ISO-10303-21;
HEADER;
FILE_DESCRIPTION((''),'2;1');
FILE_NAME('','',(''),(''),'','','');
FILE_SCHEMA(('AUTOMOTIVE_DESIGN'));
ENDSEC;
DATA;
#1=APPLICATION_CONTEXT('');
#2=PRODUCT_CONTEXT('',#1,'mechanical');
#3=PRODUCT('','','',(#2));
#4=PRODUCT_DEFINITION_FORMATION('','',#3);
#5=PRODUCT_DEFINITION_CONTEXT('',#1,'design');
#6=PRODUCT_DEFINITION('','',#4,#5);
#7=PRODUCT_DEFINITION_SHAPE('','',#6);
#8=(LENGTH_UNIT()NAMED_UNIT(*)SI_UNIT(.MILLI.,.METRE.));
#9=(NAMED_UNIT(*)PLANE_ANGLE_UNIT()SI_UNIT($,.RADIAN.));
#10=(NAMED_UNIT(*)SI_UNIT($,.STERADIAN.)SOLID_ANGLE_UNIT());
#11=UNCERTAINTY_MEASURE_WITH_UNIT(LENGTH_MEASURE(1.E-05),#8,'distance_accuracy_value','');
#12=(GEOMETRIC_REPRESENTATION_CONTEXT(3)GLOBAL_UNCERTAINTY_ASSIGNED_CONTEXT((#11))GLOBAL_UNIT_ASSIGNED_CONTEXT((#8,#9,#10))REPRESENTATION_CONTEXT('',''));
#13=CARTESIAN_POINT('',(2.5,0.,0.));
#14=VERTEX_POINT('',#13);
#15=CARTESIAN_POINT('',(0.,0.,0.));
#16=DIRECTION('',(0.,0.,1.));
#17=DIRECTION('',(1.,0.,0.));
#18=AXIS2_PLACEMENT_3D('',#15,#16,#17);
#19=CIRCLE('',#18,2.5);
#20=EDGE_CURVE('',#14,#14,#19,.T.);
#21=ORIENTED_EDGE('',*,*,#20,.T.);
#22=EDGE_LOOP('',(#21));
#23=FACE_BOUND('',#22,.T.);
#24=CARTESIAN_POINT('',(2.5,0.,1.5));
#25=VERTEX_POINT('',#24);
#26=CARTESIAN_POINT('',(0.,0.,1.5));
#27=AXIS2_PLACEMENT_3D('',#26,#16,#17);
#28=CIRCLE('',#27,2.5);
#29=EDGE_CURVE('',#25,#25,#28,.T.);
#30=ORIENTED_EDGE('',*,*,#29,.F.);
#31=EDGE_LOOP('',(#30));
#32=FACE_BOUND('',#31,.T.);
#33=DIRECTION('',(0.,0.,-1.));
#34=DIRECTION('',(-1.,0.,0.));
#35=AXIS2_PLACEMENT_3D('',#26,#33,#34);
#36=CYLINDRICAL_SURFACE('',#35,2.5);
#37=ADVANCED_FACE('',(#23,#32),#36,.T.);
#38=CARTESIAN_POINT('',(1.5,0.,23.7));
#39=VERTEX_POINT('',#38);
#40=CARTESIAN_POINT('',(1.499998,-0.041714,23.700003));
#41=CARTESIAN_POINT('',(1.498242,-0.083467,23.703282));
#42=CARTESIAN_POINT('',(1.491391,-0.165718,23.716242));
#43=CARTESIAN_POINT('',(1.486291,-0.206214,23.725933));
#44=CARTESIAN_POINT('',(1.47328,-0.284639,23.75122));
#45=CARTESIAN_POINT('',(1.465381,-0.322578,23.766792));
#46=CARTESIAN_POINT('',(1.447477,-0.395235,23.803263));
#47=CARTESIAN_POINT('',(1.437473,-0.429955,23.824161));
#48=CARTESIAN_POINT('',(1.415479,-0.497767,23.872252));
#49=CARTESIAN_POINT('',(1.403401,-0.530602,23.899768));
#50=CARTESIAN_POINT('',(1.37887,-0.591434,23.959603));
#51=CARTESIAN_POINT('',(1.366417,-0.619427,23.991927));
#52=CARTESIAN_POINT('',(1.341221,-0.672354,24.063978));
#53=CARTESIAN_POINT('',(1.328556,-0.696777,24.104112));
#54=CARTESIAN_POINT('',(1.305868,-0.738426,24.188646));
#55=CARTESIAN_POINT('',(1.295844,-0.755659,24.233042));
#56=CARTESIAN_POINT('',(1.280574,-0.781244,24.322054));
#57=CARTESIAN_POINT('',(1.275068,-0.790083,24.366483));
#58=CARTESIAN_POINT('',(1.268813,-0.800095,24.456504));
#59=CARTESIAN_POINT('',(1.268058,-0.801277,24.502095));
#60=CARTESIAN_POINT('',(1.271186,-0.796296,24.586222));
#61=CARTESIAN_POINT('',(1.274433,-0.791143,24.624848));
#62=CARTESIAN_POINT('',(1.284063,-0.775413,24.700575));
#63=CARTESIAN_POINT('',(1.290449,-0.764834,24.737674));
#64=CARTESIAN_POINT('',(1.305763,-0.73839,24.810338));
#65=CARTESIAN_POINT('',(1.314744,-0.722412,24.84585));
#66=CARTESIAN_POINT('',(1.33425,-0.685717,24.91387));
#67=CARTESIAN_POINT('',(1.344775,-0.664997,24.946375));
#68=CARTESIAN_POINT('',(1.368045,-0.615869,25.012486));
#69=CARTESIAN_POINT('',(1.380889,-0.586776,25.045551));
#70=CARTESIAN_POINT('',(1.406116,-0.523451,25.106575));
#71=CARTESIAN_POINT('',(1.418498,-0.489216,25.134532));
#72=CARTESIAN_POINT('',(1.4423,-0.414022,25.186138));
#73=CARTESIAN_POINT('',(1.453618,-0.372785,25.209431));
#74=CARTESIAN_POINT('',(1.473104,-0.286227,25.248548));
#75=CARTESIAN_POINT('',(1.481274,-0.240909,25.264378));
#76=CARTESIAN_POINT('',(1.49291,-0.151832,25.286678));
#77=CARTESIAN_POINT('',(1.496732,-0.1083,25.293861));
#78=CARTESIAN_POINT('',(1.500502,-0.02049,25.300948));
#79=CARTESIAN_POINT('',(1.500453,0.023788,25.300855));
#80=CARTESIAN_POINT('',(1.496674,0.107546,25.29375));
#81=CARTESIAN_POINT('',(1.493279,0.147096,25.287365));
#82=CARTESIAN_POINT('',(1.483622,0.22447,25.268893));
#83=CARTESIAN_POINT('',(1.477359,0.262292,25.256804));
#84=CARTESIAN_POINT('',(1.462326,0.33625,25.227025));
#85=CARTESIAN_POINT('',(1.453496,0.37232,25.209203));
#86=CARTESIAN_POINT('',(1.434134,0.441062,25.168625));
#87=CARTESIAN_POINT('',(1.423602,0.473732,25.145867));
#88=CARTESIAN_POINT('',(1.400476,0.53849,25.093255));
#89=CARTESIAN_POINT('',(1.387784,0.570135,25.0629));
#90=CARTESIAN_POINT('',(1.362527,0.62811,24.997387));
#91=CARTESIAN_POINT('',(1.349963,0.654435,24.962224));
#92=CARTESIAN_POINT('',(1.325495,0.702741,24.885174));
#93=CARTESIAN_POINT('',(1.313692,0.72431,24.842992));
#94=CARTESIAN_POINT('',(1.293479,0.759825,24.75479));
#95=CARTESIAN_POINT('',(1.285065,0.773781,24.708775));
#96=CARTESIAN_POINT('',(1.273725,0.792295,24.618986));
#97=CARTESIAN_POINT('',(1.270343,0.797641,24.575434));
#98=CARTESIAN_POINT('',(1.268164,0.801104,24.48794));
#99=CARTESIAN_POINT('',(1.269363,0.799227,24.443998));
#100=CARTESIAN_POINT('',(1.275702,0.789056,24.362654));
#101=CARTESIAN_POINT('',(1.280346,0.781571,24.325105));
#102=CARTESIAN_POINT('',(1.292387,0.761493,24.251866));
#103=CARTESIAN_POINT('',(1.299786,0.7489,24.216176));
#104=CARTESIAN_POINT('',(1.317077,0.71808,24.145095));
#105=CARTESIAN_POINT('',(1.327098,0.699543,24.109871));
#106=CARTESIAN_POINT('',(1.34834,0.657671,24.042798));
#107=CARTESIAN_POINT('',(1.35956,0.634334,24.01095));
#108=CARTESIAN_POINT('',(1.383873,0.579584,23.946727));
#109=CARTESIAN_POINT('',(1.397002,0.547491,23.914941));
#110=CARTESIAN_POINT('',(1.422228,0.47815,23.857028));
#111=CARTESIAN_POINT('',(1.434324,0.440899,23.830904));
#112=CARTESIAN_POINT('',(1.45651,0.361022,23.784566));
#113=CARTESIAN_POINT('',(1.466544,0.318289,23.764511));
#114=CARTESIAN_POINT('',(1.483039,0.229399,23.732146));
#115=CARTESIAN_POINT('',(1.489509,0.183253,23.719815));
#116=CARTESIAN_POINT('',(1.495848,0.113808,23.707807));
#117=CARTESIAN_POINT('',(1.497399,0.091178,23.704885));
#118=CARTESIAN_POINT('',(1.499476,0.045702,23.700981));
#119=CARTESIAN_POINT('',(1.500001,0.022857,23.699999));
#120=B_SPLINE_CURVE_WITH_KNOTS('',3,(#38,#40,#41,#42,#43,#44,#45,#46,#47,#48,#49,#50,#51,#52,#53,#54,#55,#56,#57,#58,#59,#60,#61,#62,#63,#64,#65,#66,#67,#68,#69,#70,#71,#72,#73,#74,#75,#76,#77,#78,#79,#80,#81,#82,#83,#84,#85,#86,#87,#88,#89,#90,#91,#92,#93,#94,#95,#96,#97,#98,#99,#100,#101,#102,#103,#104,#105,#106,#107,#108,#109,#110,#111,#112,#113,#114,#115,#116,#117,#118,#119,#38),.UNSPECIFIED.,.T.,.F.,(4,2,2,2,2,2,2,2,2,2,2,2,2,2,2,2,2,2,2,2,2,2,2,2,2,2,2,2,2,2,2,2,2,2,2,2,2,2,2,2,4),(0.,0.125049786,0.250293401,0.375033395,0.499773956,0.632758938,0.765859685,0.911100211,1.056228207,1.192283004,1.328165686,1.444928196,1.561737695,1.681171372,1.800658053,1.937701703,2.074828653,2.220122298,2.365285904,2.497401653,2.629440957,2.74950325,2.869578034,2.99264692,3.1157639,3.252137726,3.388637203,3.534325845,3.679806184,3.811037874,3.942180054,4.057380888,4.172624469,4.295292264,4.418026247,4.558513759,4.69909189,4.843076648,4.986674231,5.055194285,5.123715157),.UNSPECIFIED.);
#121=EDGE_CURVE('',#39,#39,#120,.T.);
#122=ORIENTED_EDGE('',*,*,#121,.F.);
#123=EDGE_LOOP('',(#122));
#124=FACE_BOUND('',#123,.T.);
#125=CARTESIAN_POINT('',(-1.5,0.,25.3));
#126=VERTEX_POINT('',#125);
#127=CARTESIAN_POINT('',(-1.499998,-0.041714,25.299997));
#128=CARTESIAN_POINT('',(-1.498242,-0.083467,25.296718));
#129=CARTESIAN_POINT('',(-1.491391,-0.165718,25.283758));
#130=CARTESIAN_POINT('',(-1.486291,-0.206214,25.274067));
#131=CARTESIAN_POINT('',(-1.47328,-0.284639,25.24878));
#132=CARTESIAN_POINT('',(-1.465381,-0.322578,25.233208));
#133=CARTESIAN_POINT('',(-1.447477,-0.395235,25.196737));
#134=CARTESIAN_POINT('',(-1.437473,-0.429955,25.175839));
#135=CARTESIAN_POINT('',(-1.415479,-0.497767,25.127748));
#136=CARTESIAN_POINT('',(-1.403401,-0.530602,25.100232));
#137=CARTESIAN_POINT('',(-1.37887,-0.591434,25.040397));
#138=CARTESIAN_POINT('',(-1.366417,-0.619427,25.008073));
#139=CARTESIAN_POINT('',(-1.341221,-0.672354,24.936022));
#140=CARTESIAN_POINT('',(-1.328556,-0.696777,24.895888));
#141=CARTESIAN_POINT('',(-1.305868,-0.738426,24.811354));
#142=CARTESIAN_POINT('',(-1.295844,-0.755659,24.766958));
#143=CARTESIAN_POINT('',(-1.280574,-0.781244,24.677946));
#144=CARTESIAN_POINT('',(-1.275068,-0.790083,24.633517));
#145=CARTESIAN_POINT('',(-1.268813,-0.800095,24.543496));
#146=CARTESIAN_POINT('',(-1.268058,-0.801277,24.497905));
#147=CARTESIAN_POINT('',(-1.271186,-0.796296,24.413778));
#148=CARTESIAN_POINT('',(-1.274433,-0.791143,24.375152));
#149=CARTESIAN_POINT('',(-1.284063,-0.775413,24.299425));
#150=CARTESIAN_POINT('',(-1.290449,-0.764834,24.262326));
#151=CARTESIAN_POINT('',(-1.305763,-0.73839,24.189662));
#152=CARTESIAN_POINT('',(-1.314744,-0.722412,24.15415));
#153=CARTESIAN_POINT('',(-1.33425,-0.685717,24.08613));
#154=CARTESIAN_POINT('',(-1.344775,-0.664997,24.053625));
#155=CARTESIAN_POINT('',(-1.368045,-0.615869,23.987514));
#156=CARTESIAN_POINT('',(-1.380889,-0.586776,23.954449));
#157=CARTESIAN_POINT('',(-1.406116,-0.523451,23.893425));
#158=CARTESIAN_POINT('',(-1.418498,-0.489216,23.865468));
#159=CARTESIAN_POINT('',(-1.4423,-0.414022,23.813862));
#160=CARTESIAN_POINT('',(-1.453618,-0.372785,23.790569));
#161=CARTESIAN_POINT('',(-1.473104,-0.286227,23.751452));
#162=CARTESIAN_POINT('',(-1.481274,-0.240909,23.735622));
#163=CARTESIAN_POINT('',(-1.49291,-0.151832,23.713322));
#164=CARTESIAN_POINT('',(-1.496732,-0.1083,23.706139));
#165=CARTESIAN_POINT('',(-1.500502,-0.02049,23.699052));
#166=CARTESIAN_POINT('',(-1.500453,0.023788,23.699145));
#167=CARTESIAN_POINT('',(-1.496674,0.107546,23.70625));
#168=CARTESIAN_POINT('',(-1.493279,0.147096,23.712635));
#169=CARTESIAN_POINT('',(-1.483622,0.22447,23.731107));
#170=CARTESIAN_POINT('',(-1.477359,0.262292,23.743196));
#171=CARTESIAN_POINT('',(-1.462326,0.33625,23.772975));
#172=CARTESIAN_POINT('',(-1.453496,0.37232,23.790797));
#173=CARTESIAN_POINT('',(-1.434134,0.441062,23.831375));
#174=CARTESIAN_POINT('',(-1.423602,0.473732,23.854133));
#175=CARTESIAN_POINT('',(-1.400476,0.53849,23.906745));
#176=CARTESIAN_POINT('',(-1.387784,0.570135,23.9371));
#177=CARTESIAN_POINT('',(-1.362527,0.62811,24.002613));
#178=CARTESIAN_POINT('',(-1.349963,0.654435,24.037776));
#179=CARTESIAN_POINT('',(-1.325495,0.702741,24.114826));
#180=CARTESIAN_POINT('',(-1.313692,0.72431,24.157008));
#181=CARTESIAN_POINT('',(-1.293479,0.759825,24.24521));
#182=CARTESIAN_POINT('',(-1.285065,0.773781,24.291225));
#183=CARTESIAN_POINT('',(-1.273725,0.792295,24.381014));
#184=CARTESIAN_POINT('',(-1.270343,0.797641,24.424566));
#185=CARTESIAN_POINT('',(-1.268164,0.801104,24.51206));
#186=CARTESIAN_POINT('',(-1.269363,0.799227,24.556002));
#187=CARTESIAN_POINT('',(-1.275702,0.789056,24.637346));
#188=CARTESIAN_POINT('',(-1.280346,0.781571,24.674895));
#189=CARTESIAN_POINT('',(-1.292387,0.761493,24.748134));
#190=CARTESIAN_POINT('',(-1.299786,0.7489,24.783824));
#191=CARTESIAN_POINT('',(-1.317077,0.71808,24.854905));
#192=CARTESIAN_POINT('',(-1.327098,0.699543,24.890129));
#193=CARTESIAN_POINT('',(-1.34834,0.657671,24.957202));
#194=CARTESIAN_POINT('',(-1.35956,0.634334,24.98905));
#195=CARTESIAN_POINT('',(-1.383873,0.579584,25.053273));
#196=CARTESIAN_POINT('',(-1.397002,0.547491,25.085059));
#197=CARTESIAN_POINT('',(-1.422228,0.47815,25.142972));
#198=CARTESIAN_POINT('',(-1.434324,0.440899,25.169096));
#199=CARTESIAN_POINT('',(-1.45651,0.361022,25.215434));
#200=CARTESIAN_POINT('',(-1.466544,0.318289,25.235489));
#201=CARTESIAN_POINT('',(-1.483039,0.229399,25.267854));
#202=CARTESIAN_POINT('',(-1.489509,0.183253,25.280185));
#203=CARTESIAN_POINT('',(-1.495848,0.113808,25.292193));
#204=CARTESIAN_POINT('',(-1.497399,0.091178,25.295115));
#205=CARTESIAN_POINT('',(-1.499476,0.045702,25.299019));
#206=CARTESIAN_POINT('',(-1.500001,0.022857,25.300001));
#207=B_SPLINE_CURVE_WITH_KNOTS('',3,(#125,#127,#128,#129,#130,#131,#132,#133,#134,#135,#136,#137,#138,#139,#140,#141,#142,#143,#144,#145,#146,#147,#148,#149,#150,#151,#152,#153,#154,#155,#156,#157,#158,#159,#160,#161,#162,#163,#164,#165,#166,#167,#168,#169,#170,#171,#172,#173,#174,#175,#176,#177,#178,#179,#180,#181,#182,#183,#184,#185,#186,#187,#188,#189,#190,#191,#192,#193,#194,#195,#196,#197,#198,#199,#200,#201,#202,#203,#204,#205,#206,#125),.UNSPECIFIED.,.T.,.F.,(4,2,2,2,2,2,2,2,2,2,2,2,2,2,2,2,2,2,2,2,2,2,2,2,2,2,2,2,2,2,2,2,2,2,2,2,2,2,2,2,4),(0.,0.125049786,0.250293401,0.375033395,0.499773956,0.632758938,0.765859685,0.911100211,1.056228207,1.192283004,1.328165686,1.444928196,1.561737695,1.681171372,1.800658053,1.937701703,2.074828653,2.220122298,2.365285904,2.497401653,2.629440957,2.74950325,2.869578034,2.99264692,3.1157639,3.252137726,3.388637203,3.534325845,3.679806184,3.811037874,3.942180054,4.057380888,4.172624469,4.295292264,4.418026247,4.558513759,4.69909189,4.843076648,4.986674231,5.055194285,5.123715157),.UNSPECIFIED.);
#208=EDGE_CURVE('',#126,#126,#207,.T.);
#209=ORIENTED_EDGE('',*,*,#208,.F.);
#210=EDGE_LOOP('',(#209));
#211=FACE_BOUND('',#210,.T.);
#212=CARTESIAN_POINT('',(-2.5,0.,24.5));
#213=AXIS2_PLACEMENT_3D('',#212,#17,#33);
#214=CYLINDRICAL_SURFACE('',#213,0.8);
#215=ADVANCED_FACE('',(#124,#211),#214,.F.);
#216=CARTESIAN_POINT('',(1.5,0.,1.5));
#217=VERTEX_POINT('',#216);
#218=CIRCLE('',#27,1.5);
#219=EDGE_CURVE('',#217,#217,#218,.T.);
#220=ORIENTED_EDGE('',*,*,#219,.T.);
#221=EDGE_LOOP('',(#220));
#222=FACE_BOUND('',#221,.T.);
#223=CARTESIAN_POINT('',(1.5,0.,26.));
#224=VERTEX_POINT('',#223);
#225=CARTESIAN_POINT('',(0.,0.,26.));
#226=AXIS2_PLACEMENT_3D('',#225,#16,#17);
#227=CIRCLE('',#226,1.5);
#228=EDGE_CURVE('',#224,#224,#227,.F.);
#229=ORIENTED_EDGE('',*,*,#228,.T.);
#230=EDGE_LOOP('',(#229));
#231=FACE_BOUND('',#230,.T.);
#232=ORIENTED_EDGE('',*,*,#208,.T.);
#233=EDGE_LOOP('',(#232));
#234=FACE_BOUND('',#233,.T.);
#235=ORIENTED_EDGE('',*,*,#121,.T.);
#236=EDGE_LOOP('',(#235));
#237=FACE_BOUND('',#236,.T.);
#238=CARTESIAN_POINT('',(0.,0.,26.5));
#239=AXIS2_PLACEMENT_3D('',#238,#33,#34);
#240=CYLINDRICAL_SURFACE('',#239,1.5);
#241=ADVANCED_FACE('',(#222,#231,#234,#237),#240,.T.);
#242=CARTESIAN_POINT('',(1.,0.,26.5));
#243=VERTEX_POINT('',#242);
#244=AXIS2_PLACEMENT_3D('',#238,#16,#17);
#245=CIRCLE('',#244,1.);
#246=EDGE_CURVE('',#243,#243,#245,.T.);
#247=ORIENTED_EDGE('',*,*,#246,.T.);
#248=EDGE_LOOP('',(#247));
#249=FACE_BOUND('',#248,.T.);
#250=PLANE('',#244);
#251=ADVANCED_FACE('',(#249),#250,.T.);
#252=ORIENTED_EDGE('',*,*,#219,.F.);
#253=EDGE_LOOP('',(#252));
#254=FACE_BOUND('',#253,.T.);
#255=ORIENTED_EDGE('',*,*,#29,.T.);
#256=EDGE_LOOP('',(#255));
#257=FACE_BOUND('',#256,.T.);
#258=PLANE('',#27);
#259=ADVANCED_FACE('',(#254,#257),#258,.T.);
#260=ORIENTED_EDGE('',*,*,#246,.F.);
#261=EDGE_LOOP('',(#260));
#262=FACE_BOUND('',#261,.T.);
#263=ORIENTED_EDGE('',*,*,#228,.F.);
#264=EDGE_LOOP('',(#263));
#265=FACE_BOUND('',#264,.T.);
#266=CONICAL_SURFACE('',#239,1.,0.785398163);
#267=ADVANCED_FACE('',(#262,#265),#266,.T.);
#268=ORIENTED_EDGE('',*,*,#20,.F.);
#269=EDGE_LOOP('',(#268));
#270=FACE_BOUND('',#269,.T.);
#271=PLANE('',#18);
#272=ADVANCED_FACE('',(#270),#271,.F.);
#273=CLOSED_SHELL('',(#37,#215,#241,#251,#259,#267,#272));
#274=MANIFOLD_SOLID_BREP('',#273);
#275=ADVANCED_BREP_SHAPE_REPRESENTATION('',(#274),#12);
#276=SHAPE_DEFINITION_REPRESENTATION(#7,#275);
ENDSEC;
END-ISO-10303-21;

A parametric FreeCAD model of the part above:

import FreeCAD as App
import Part
import Sketcher
from FreeCAD import Vector


def edges_at(feature, points):
    """Names of the edges that pass closest to the given points."""
    edges = feature.Shape.Edges
    near = lambda p: min(range(len(edges)), key=lambda i: edges[i].distToShape(Part.Vertex(*p))[0])
    return sorted({f"Edge{near(p) + 1}" for p in points})

doc = App.newDocument("Part")
body = doc.addObject("PartDesign::Body", "Body")

# Sketch on XY plane
sketch1 = body.newObject("Sketcher::SketchObject", "Sketch")
sketch1.AttachmentSupport = (doc.getObject("XY_Plane"), [""])
sketch1.MapMode = "FlatFace"
sketch1.addGeometry(Part.Circle(Vector(0, 0, 0), Vector(0, 0, 1), 2.5), False)
sketch1.addConstraint(Sketcher.Constraint("Coincident", 0, 3, -1, 1))
sketch1.addConstraint(Sketcher.Constraint("Diameter", 0, 5.0))
pad1 = body.newObject("PartDesign::Pad", "Pad")
pad1.Profile = sketch1
pad1.Length = 1.5

# Sketch on XY plane
sketch2 = body.newObject("Sketcher::SketchObject", "Sketch001")
sketch2.AttachmentSupport = (doc.getObject("XY_Plane"), [""])
sketch2.MapMode = "FlatFace"
sketch2.AttachmentOffset = App.Placement(Vector(0, 0, 1.5), App.Rotation())
sketch2.addGeometry(Part.Circle(Vector(0, 0, 0), Vector(0, 0, 1), 1.5), False)
sketch2.addConstraint(Sketcher.Constraint("Coincident", 0, 3, -1, 1))
sketch2.addConstraint(Sketcher.Constraint("Diameter", 0, 3.0))
pad2 = body.newObject("PartDesign::Pad", "Pad001")
pad2.Profile = sketch2
pad2.Length = 25

# Sketch on YZ plane
sketch3 = body.newObject("Sketcher::SketchObject", "Sketch002")
sketch3.AttachmentSupport = (doc.getObject("YZ_Plane"), [""])
sketch3.MapMode = "FlatFace"
sketch3.AttachmentOffset = App.Placement(Vector(0, 0, 1.5), App.Rotation())
sketch3.addGeometry(Part.Circle(Vector(0, 24.5, 0), Vector(0, 0, 1), 0.8), False)
sketch3.addConstraint(Sketcher.Constraint("PointOnObject", 0, 3, -2))
sketch3.addConstraint(Sketcher.Constraint("Diameter", 0, 1.6))
sketch3.addConstraint(Sketcher.Constraint("DistanceY", -1, 1, 0, 3, 24.5))
pocket1 = body.newObject("PartDesign::Pocket", "Pocket")
pocket1.Profile = sketch3
pocket1.Type = "ThroughAll"
doc.recompute()

chamfer = body.newObject("PartDesign::Chamfer", "Chamfer")
chamfer.Base = (pocket1, edges_at(pocket1, [(-1.5, 0, 26.5)]))
chamfer.Size = 0.5

doc.recompute()
